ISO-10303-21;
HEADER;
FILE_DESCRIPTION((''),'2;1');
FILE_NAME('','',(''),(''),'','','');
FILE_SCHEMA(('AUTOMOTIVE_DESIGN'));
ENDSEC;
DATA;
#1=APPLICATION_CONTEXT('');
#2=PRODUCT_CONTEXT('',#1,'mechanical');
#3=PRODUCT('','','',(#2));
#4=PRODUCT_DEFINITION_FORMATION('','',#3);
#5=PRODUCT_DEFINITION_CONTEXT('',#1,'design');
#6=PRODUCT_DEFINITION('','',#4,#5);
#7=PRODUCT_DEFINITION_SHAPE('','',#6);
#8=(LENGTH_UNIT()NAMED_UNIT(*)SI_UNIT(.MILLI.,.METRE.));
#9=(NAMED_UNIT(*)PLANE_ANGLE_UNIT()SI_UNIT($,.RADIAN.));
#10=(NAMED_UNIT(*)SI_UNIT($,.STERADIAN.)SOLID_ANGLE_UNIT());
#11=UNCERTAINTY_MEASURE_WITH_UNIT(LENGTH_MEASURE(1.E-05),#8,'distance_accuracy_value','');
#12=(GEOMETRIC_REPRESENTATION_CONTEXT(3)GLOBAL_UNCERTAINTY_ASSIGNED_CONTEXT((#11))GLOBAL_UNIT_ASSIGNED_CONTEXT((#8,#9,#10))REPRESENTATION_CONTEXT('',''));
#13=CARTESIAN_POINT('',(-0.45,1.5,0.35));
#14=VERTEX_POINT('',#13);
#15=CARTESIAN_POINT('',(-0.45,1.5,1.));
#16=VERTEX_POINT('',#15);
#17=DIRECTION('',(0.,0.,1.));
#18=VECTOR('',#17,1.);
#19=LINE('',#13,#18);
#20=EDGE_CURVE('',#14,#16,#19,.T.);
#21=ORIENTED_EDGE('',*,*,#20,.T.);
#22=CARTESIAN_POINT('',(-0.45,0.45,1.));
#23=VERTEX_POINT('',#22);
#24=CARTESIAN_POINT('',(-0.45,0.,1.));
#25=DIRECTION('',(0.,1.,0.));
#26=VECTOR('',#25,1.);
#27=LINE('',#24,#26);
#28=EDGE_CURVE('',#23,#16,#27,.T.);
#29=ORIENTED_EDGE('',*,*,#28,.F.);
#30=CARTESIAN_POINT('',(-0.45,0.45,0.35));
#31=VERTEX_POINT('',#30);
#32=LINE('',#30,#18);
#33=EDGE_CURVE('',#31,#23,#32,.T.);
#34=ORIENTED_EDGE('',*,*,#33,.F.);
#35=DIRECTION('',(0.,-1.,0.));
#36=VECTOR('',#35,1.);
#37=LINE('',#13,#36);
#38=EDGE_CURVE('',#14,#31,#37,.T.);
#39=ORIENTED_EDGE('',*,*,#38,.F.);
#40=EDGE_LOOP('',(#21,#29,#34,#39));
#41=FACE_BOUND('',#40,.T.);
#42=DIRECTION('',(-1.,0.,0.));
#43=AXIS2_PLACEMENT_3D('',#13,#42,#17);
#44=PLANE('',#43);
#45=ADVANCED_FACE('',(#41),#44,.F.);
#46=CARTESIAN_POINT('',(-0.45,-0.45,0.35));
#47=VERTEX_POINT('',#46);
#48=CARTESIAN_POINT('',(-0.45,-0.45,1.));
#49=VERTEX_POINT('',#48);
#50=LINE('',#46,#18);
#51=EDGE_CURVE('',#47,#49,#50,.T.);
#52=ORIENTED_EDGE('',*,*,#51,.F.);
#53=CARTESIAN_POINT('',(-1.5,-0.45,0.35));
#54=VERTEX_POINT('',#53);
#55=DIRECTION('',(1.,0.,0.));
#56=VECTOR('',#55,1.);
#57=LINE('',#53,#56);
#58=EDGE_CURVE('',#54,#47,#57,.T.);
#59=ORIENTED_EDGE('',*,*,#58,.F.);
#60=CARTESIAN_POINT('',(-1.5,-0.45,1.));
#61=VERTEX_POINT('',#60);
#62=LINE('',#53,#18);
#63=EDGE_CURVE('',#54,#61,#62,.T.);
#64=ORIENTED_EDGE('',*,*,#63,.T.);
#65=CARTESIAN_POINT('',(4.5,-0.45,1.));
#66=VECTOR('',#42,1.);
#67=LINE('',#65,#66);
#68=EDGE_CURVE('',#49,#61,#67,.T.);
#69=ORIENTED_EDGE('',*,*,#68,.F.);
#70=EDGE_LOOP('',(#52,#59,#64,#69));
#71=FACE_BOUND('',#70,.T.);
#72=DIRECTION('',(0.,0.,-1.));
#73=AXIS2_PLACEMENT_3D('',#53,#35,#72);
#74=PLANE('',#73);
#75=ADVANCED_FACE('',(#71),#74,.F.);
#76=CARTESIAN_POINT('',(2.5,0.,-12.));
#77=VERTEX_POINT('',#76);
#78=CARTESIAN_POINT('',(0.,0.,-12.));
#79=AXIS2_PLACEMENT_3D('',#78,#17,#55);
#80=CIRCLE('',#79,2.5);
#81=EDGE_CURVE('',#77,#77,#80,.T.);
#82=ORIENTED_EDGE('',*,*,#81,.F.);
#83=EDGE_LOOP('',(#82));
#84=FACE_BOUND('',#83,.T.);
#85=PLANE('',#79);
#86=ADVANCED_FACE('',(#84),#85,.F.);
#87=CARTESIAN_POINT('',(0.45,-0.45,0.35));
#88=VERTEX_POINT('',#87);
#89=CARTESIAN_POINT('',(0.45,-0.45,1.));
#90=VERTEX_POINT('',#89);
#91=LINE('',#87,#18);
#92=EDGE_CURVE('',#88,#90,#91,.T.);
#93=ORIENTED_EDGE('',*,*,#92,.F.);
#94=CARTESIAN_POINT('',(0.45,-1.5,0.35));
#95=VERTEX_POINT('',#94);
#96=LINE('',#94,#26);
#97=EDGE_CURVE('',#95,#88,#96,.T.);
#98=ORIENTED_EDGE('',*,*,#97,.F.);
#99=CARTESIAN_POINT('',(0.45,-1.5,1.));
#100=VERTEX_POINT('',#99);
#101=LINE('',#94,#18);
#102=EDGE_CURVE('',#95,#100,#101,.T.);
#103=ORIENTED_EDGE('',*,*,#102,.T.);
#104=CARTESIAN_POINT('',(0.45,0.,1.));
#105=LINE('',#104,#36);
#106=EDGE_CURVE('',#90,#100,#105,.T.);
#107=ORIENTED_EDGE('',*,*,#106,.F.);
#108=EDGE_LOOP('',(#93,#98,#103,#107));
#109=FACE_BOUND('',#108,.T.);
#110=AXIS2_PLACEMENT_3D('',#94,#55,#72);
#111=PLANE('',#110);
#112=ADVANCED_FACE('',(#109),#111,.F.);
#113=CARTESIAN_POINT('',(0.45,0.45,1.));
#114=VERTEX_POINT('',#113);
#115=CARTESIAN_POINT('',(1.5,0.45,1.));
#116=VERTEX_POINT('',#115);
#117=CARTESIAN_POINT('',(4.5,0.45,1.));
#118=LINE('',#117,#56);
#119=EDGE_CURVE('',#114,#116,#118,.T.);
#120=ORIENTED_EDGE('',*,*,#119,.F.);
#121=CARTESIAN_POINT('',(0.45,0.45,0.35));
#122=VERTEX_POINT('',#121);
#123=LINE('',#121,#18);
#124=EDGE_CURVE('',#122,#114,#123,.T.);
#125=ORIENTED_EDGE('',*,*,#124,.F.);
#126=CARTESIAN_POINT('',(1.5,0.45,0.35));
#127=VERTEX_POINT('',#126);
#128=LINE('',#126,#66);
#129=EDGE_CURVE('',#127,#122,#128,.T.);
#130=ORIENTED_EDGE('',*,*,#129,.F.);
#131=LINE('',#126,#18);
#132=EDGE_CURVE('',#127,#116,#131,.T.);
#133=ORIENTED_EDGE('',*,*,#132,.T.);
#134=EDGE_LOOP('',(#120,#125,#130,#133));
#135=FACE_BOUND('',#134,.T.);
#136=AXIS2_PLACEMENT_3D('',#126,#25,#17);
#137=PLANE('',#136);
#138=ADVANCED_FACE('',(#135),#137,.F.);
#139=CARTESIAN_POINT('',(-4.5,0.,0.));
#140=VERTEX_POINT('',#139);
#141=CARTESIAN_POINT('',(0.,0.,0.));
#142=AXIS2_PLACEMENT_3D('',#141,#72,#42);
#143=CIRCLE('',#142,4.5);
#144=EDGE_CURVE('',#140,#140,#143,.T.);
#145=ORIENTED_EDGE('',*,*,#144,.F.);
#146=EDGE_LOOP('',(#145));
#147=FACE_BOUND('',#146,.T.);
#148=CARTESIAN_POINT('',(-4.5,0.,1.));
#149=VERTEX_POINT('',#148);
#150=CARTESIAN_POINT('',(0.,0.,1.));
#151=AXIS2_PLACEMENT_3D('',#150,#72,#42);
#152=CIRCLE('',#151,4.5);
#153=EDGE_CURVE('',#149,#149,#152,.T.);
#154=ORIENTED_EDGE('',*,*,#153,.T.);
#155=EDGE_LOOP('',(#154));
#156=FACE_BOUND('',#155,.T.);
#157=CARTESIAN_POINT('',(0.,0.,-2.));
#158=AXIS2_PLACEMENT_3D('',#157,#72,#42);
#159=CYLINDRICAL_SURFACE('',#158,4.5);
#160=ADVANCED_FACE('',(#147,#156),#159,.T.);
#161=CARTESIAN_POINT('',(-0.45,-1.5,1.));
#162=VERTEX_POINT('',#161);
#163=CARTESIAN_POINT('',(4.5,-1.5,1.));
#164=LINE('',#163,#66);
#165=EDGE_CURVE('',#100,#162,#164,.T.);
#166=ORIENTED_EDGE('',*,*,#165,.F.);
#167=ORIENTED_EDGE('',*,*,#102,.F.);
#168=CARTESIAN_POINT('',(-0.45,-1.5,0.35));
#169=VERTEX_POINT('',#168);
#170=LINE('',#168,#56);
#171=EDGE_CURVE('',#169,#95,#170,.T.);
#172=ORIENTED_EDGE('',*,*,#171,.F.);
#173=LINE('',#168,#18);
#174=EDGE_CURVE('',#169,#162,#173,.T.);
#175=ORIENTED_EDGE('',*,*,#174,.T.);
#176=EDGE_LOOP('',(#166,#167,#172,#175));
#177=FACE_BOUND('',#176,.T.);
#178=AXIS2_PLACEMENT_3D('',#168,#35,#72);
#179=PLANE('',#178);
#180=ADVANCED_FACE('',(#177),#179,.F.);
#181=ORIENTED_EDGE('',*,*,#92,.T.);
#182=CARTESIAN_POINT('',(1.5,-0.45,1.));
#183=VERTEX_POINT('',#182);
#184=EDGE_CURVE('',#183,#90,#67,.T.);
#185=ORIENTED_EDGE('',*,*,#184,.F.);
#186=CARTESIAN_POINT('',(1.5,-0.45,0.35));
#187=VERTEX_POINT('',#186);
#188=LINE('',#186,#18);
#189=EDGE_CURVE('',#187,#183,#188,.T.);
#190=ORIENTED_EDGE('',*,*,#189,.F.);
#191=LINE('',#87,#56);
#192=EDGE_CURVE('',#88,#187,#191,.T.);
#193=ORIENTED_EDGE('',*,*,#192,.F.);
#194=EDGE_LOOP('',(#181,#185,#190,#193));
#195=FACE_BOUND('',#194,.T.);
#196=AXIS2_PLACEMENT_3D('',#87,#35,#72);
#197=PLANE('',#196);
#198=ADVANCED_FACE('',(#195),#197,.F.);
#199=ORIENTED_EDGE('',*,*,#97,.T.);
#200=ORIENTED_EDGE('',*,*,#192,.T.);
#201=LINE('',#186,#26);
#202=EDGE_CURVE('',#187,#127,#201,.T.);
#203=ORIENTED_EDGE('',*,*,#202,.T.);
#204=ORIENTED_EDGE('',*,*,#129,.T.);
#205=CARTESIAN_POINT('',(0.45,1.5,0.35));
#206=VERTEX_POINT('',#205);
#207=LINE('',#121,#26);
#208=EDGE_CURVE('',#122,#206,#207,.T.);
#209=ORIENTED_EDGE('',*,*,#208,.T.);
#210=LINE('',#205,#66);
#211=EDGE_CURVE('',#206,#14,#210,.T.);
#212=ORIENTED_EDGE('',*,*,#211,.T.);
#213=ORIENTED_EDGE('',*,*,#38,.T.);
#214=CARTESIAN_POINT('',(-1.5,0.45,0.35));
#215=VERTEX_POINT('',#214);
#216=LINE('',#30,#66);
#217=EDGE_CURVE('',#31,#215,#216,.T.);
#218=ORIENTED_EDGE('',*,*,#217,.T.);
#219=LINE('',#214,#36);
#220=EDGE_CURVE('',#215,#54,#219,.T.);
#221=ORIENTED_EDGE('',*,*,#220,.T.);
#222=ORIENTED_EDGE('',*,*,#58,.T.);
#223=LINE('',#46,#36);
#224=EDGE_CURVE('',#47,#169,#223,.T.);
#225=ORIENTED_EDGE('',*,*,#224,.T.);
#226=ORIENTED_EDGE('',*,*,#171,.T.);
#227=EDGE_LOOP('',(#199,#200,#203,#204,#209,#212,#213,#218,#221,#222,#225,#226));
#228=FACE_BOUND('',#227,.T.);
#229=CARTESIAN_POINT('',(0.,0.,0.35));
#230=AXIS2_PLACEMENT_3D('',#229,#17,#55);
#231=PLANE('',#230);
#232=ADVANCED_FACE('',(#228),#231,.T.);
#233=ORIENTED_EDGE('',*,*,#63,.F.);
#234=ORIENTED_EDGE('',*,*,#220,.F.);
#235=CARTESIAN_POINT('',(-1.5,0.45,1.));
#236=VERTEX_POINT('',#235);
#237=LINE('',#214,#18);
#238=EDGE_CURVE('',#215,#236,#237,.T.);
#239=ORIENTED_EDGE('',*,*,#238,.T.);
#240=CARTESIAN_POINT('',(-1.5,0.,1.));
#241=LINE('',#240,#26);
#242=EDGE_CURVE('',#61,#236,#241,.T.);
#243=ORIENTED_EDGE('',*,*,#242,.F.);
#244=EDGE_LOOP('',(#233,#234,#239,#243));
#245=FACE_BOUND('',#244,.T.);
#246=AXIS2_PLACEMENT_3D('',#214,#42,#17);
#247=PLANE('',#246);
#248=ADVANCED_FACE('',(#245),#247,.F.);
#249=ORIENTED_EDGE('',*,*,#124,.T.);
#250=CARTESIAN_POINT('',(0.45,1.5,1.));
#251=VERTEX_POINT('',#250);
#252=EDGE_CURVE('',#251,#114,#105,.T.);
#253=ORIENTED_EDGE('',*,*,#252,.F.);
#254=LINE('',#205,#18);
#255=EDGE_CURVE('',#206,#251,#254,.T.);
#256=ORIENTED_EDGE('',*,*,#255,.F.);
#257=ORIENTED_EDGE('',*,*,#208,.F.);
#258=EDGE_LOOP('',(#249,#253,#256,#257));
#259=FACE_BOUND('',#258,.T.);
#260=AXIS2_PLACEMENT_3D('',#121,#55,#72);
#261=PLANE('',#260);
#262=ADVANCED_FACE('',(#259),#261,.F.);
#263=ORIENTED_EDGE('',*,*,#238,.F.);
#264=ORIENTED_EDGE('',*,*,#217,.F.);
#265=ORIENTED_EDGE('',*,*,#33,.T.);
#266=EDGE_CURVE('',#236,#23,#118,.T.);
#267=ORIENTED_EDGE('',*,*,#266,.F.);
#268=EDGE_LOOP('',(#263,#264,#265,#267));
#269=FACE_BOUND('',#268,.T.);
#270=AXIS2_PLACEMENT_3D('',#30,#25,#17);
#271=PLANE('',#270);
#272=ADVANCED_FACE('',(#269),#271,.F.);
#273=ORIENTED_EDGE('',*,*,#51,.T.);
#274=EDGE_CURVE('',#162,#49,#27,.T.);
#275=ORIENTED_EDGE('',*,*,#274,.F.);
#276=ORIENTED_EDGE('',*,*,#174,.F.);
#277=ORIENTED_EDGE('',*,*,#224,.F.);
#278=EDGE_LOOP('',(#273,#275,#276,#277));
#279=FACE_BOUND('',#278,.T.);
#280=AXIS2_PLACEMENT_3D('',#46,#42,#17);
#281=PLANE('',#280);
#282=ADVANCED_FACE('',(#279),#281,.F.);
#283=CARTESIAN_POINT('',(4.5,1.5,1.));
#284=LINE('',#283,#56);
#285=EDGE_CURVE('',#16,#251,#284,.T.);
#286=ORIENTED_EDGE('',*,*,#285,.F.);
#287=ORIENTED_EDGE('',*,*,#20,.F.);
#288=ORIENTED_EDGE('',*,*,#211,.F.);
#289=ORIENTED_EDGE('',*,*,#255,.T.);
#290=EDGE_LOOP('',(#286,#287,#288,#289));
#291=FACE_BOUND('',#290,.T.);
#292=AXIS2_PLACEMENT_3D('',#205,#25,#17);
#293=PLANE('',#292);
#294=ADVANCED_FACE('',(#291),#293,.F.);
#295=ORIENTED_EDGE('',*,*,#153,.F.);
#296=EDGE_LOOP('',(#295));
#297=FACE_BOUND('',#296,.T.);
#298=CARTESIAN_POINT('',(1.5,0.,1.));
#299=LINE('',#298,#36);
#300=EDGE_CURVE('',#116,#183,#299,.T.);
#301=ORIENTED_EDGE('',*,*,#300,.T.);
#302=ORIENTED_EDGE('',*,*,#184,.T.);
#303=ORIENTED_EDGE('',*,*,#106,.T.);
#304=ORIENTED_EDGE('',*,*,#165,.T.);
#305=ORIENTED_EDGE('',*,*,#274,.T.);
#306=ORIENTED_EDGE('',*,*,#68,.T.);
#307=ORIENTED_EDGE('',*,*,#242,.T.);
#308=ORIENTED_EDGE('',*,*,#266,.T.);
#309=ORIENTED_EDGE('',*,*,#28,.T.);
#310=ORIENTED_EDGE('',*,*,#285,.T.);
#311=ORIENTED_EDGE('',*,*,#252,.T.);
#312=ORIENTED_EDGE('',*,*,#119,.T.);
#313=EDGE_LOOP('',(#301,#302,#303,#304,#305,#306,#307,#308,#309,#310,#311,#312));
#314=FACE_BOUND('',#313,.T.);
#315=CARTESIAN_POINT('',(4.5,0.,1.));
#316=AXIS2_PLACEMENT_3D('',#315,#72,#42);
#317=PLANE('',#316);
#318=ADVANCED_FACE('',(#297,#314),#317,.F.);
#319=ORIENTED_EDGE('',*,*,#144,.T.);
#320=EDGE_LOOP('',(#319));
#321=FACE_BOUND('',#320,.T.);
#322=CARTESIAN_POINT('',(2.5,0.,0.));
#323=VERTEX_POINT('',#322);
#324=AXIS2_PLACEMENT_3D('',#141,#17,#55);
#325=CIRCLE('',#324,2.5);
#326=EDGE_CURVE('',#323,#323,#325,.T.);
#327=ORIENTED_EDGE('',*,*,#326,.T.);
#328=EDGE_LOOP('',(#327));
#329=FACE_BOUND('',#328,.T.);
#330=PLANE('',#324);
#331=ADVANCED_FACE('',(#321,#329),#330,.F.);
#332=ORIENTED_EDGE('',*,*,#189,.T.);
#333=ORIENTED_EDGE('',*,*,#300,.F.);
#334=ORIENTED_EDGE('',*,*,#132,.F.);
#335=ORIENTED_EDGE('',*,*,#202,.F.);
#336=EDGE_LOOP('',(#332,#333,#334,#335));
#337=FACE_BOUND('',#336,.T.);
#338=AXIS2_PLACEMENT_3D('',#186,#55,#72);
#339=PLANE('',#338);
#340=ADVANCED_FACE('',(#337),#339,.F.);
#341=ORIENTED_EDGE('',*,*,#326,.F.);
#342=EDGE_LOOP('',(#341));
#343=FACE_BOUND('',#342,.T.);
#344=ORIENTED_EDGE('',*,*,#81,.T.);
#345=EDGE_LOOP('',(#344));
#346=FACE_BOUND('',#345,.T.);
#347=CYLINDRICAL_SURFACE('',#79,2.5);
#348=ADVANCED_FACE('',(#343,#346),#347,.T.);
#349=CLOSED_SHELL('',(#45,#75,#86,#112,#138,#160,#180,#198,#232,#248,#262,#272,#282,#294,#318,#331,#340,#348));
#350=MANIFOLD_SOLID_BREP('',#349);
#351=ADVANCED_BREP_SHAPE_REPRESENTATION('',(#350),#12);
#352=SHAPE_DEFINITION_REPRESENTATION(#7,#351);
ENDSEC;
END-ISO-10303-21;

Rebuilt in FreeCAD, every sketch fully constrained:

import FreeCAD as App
import Part
import Sketcher
from FreeCAD import Vector
Q = App.Units.Quantity

doc = App.newDocument("Part")
body = doc.addObject("PartDesign::Body", "Body")

# Sketch on XY plane
sketch1 = doc.addObject("Sketcher::SketchObject", "Sketch")
body.addObject(sketch1)
sketch1.AttachmentSupport = (doc.XY_Plane, [""])
sketch1.MapMode = "FlatFace"
sketch1.addGeometry(Part.Circle(Vector(0, 0, 0), Vector(0, 0, 1), 2.5), False)
sketch1.addConstraint([
    Sketcher.Constraint("Coincident", 0, 3, -1, 1),
    Sketcher.Constraint("Diameter", 0, Q("5 mm")),
])
pad1 = doc.addObject("PartDesign::Pad", "Pad")
body.addObject(pad1)
pad1.Profile = sketch1
pad1.Length = 12
pad1.Reversed = True

# Sketch on XZ plane
sketch2 = doc.addObject("Sketcher::SketchObject", "Sketch001")
body.addObject(sketch2)
sketch2.AttachmentSupport = (doc.XZ_Plane, [""])
sketch2.MapMode = "FlatFace"
sketch2.addGeometry([
    Part.LineSegment(Vector(0, 0, 0), Vector(0, 1, 0)),
    Part.LineSegment(Vector(0, 1, 0), Vector(4.5, 1, 0)),
    Part.LineSegment(Vector(4.5, 1, 0), Vector(4.5, 0, 0)),
    Part.LineSegment(Vector(4.5, 0, 0), Vector(0, 0, 0)),
], False)
sketch2.addConstraint([
    Sketcher.Constraint("Coincident", 0, 2, 1, 1),
    Sketcher.Constraint("Coincident", 1, 2, 2, 1),
    Sketcher.Constraint("Coincident", 2, 2, 3, 1),
    Sketcher.Constraint("Coincident", 3, 2, 0, 1),
    Sketcher.Constraint("Vertical", 0),
    Sketcher.Constraint("Horizontal", 1),
    Sketcher.Constraint("Vertical", 2),
    Sketcher.Constraint("Horizontal", 3),
    Sketcher.Constraint("Coincident", 3, 2, -1, 1),
    Sketcher.Constraint("DistanceY", 0, 1, 0, 2, Q("1 mm")),
    Sketcher.Constraint("DistanceX", 1, 1, 1, 2, Q("4.5 mm")),
])
revolution = doc.addObject("PartDesign::Revolution", "Revolution")
body.addObject(revolution)
revolution.Profile = sketch2
revolution.ReferenceAxis = (sketch2, ["V_Axis"])
revolution.Angle = 360

# Sketch on XY plane
sketch3 = doc.addObject("Sketcher::SketchObject", "Sketch002")
body.addObject(sketch3)
sketch3.AttachmentSupport = (doc.XY_Plane, [""])
sketch3.MapMode = "FlatFace"
sketch3.AttachmentOffset = App.Placement(Vector(0, 0, 1.01), App.Rotation())
sketch3.addGeometry([
    Part.LineSegment(Vector(-0.5, -1.5, 0), Vector(0.5, -1.5, 0)),  # 0
    Part.LineSegment(Vector(0.5, -1.5, 0), Vector(0.5, -0.5, 0)),  # 1
    Part.LineSegment(Vector(0.5, -0.5, 0), Vector(1.5, -0.5, 0)),  # 2
    Part.LineSegment(Vector(1.5, -0.5, 0), Vector(1.5, 0.5, 0)),  # 3
    Part.LineSegment(Vector(1.5, 0.5, 0), Vector(0.5, 0.5, 0)),  # 4
    Part.LineSegment(Vector(0.5, 0.5, 0), Vector(0.5, 1.5, 0)),  # 5
    Part.LineSegment(Vector(0.5, 1.5, 0), Vector(-0.5, 1.5, 0)),  # 6
    Part.LineSegment(Vector(-0.5, 1.5, 0), Vector(-0.5, 0.5, 0)),  # 7
    Part.LineSegment(Vector(-0.5, 0.5, 0), Vector(-1.5, 0.5, 0)),  # 8
    Part.LineSegment(Vector(-1.5, 0.5, 0), Vector(-1.5, -0.5, 0)),  # 9
    Part.LineSegment(Vector(-1.5, -0.5, 0), Vector(-0.5, -0.5, 0)),  # 10
    Part.LineSegment(Vector(-0.5, -0.5, 0), Vector(-0.5, -1.5, 0)),  # 11
], False)
sketch3.addConstraint([
    Sketcher.Constraint("Coincident", 0, 2, 1, 1),
    Sketcher.Constraint("Coincident", 1, 2, 2, 1),
    Sketcher.Constraint("Coincident", 2, 2, 3, 1),
    Sketcher.Constraint("Coincident", 3, 2, 4, 1),
    Sketcher.Constraint("Coincident", 4, 2, 5, 1),
    Sketcher.Constraint("Coincident", 5, 2, 6, 1),
    Sketcher.Constraint("Coincident", 6, 2, 7, 1),
    Sketcher.Constraint("Coincident", 7, 2, 8, 1),
    Sketcher.Constraint("Coincident", 8, 2, 9, 1),
    Sketcher.Constraint("Coincident", 9, 2, 10, 1),
    Sketcher.Constraint("Coincident", 10, 2, 11, 1),
    Sketcher.Constraint("Coincident", 11, 2, 0, 1),
    Sketcher.Constraint("Horizontal", 0),
    Sketcher.Constraint("Vertical", 1),
    Sketcher.Constraint("Horizontal", 2),
    Sketcher.Constraint("Vertical", 3),
    Sketcher.Constraint("Horizontal", 4),
    Sketcher.Constraint("Vertical", 5),
    Sketcher.Constraint("Horizontal", 6),
    Sketcher.Constraint("Vertical", 7),
    Sketcher.Constraint("Horizontal", 8),
    Sketcher.Constraint("Vertical", 9),
    Sketcher.Constraint("Horizontal", 10),
    Sketcher.Constraint("Vertical", 11),
    Sketcher.Constraint("Symmetric", 0, 2, 6, 2, -1, 1),
    Sketcher.Constraint("Symmetric", 2, 2, 8, 2, -1, 1),
    Sketcher.Constraint("Symmetric", 4, 2, 10, 2, -1, 1),
    Sketcher.Constraint("Symmetric", 4, 2, 7, 2, -2),
    Sketcher.Constraint("Equal", 10, 1),
    Sketcher.Constraint("Equal", 6, 3),
    Sketcher.Constraint("DistanceX", 0, 1, 0, 2, Q("0.9 mm")),
    Sketcher.Constraint("DistanceY", 0, 2, 5, 2, Q("3 mm")),
])
pocket1 = doc.addObject("PartDesign::Pocket", "Pocket")
body.addObject(pocket1)
pocket1.Profile = sketch3
pocket1.Length = 0.66

doc.recompute()
